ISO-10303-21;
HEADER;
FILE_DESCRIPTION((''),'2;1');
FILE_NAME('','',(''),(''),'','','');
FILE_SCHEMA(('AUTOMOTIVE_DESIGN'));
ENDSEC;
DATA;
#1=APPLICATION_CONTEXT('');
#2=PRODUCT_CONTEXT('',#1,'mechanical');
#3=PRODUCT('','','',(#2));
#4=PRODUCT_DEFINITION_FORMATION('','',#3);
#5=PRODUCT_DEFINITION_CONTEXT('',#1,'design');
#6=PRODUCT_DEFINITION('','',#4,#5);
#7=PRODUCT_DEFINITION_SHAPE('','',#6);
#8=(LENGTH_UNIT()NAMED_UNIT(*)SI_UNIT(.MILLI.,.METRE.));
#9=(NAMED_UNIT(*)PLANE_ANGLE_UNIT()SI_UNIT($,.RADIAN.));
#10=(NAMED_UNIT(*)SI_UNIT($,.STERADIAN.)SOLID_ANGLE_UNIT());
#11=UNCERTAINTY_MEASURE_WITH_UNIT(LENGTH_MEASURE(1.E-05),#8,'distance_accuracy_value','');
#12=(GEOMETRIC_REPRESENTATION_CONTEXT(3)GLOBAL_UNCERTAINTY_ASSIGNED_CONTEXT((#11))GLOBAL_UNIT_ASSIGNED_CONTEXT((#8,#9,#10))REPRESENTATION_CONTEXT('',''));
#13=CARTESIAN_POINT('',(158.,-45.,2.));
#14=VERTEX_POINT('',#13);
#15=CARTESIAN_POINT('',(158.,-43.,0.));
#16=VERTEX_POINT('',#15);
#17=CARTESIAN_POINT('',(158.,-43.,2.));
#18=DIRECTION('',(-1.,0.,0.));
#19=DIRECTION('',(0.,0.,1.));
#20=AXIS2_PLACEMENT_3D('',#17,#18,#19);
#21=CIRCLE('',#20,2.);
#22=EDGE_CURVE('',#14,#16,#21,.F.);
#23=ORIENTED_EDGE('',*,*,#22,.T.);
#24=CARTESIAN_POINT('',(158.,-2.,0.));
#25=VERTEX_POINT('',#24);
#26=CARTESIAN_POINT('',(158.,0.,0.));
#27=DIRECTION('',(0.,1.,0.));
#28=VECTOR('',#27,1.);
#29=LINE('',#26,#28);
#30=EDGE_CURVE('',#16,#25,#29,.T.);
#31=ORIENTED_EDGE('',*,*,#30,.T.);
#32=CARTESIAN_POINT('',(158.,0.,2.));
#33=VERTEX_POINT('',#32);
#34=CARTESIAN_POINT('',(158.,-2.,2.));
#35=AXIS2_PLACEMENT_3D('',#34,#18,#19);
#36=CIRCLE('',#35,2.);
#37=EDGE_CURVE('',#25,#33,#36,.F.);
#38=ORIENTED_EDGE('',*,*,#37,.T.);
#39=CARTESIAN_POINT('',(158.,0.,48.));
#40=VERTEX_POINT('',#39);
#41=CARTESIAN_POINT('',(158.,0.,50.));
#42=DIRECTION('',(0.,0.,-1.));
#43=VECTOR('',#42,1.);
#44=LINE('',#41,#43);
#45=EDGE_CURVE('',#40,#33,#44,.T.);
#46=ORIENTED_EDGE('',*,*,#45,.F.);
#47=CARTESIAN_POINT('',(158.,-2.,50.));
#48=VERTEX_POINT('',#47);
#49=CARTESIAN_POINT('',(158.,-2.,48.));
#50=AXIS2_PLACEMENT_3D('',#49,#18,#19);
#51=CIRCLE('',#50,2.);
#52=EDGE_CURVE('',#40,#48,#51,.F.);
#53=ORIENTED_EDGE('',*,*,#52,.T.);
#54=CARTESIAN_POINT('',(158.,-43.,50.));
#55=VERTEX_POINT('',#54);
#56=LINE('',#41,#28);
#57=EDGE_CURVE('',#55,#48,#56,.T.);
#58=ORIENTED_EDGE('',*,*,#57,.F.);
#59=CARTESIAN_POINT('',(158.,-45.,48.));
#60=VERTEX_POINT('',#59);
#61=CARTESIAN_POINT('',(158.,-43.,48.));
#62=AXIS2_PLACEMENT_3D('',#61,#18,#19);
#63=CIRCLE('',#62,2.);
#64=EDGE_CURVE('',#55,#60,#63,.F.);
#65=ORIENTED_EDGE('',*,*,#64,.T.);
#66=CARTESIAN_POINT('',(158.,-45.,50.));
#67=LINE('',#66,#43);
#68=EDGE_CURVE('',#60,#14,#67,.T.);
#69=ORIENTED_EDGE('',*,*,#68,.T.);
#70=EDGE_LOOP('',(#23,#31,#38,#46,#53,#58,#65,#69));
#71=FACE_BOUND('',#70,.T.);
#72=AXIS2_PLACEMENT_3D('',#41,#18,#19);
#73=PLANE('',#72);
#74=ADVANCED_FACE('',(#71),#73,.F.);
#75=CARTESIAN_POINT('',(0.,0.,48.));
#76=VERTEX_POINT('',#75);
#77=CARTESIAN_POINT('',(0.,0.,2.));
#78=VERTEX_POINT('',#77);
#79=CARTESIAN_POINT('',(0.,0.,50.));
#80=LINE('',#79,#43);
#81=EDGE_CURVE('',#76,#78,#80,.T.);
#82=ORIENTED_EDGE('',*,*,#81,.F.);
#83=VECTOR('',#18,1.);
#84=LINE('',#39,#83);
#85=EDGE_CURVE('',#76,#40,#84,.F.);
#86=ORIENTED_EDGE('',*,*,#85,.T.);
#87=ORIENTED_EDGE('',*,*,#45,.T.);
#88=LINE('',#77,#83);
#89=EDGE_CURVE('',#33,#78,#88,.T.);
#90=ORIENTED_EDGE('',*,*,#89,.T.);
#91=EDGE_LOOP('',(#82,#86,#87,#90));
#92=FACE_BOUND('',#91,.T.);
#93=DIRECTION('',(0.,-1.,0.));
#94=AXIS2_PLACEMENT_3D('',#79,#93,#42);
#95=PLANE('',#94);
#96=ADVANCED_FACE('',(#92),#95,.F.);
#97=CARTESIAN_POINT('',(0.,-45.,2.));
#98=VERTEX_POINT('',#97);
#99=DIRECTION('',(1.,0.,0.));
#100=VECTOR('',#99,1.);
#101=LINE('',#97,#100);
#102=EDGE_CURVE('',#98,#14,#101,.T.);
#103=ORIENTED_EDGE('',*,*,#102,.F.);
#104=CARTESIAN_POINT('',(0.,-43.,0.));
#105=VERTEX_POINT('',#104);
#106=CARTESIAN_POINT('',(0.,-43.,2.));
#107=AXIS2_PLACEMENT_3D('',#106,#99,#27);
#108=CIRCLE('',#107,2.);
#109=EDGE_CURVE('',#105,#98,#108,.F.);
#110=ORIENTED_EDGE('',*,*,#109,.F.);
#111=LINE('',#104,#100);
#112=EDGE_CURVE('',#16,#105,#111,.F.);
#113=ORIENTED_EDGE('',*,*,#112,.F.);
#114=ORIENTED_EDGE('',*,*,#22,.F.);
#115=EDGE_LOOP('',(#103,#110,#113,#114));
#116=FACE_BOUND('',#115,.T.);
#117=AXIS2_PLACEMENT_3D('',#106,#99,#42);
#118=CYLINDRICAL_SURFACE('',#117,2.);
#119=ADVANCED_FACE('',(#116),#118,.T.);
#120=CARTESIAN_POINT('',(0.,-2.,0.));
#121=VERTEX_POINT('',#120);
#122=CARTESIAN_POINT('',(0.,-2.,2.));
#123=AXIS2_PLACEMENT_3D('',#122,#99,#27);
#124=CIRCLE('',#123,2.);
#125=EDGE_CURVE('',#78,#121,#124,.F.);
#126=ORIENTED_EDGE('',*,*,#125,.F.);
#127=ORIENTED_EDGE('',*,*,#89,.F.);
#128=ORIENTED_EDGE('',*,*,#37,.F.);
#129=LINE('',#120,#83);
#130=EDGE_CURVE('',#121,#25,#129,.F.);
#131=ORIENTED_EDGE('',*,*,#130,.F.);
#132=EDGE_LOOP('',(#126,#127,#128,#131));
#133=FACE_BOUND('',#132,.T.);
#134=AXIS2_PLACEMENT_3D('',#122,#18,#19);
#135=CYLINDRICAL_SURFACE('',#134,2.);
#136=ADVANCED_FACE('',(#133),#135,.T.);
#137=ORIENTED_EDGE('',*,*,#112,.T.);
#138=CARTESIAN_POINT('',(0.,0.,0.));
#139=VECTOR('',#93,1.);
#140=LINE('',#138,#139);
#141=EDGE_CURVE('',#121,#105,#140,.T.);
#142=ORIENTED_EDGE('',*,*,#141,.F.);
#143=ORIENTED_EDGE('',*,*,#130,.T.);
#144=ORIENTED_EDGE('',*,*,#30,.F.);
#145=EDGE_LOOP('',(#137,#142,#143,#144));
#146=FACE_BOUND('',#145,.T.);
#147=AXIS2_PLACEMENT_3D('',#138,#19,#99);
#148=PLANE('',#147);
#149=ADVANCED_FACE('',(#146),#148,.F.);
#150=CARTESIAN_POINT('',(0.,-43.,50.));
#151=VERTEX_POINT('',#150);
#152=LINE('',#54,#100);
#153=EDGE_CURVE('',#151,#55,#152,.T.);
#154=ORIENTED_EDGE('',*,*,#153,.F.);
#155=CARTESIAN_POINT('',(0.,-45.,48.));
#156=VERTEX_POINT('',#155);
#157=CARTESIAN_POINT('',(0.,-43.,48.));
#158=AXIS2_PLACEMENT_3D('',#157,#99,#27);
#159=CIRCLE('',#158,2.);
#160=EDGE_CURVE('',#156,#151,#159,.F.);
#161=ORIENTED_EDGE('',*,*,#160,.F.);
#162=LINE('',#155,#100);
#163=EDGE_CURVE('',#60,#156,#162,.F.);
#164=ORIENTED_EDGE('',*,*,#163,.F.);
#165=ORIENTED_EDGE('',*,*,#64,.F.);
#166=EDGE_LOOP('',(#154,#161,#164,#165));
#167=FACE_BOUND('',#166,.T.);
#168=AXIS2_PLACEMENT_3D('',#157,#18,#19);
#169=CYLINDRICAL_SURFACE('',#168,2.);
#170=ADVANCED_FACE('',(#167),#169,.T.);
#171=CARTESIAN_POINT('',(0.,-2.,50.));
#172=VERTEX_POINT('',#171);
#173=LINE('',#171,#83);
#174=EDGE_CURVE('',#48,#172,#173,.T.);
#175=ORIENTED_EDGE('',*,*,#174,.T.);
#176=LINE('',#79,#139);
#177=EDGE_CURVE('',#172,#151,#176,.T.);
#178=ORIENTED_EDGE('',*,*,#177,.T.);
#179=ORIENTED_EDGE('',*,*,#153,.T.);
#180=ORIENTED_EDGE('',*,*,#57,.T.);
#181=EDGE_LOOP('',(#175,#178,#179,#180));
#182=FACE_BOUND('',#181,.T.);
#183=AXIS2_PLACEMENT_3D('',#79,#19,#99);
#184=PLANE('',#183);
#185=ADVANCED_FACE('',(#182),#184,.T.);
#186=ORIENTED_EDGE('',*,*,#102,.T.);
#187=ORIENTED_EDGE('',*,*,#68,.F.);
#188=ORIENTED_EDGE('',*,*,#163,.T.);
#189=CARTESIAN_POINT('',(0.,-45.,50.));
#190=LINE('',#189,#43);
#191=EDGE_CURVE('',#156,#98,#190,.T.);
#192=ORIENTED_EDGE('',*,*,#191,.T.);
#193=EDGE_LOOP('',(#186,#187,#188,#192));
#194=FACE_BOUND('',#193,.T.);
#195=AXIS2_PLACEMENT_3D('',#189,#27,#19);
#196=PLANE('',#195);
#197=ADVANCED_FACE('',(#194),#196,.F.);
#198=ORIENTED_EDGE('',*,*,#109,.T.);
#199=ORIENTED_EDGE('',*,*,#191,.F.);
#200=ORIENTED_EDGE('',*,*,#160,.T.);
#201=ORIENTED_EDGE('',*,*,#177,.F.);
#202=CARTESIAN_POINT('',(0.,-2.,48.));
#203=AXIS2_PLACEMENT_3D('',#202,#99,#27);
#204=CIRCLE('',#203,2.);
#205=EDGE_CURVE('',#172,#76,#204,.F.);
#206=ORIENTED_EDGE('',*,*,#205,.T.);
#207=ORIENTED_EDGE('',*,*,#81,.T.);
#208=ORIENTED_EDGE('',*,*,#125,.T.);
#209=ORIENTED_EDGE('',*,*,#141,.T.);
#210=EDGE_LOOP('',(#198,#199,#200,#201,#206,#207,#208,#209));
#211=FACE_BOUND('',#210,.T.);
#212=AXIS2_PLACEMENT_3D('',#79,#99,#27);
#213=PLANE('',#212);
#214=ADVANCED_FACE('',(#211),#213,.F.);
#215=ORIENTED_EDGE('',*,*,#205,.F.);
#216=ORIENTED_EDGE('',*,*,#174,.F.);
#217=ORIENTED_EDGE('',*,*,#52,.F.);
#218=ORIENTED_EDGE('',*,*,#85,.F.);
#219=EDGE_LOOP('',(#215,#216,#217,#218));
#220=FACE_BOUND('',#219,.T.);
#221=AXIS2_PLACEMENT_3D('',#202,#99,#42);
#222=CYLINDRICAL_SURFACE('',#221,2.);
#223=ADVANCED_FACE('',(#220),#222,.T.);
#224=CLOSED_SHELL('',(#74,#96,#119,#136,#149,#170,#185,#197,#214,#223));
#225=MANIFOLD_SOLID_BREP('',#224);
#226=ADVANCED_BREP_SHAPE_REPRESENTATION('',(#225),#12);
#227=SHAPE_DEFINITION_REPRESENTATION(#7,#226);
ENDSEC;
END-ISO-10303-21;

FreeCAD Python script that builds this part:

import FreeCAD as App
import Part
import Sketcher
from FreeCAD import Vector
Q = App.Units.Quantity


def edges_at(feature, points):
    """Names of the edges that pass closest to the given points."""
    edges = feature.Shape.Edges
    near = lambda p: min(range(len(edges)), key=lambda i: edges[i].distToShape(Part.Vertex(*p))[0])
    return sorted({f"Edge{near(p) + 1}" for p in points})

doc = App.newDocument("Part")
body = doc.addObject("PartDesign::Body", "Body")

# Sketch on XY plane
sketch1 = body.newObject("Sketcher::SketchObject", "Sketch")
sketch1.AttachmentSupport = (doc.getObject("XY_Plane"), [""])
sketch1.MapMode = "FlatFace"
sketch1.addGeometry(Part.LineSegment(Vector(0, 0, 0), Vector(0, -45, 0)), False)
sketch1.addGeometry(Part.LineSegment(Vector(0, -45, 0), Vector(158, -45, 0)), False)
sketch1.addGeometry(Part.LineSegment(Vector(158, -45, 0), Vector(158, 0, 0)), False)
sketch1.addGeometry(Part.LineSegment(Vector(158, 0, 0), Vector(0, 0, 0)), False)
sketch1.addConstraint(Sketcher.Constraint("Coincident", 0, 2, 1, 1))
sketch1.addConstraint(Sketcher.Constraint("Coincident", 1, 2, 2, 1))
sketch1.addConstraint(Sketcher.Constraint("Coincident", 2, 2, 3, 1))
sketch1.addConstraint(Sketcher.Constraint("Coincident", 3, 2, 0, 1))
sketch1.addConstraint(Sketcher.Constraint("Vertical", 0))
sketch1.addConstraint(Sketcher.Constraint("Horizontal", 1))
sketch1.addConstraint(Sketcher.Constraint("Vertical", 2))
sketch1.addConstraint(Sketcher.Constraint("Horizontal", 3))
sketch1.addConstraint(Sketcher.Constraint("Coincident", 3, 2, -1, 1))
sketch1.addConstraint(Sketcher.Constraint("DistanceX", 1, 1, 1, 2, Q("158 mm")))
sketch1.addConstraint(Sketcher.Constraint("DistanceY", 0, 2, 0, 1, Q("45 mm")))
pad1 = body.newObject("PartDesign::Pad", "Pad")
pad1.Profile = sketch1
pad1.Length = 50
doc.recompute()

fillet = body.newObject("PartDesign::Fillet", "Fillet")
fillet.Base = (pad1, edges_at(pad1, [
    (79, 0, 50),
    (79, 0, 0),
    (79, -45, 0),
    (79, -45, 50),
]))
fillet.Radius = 2

doc.recompute()
